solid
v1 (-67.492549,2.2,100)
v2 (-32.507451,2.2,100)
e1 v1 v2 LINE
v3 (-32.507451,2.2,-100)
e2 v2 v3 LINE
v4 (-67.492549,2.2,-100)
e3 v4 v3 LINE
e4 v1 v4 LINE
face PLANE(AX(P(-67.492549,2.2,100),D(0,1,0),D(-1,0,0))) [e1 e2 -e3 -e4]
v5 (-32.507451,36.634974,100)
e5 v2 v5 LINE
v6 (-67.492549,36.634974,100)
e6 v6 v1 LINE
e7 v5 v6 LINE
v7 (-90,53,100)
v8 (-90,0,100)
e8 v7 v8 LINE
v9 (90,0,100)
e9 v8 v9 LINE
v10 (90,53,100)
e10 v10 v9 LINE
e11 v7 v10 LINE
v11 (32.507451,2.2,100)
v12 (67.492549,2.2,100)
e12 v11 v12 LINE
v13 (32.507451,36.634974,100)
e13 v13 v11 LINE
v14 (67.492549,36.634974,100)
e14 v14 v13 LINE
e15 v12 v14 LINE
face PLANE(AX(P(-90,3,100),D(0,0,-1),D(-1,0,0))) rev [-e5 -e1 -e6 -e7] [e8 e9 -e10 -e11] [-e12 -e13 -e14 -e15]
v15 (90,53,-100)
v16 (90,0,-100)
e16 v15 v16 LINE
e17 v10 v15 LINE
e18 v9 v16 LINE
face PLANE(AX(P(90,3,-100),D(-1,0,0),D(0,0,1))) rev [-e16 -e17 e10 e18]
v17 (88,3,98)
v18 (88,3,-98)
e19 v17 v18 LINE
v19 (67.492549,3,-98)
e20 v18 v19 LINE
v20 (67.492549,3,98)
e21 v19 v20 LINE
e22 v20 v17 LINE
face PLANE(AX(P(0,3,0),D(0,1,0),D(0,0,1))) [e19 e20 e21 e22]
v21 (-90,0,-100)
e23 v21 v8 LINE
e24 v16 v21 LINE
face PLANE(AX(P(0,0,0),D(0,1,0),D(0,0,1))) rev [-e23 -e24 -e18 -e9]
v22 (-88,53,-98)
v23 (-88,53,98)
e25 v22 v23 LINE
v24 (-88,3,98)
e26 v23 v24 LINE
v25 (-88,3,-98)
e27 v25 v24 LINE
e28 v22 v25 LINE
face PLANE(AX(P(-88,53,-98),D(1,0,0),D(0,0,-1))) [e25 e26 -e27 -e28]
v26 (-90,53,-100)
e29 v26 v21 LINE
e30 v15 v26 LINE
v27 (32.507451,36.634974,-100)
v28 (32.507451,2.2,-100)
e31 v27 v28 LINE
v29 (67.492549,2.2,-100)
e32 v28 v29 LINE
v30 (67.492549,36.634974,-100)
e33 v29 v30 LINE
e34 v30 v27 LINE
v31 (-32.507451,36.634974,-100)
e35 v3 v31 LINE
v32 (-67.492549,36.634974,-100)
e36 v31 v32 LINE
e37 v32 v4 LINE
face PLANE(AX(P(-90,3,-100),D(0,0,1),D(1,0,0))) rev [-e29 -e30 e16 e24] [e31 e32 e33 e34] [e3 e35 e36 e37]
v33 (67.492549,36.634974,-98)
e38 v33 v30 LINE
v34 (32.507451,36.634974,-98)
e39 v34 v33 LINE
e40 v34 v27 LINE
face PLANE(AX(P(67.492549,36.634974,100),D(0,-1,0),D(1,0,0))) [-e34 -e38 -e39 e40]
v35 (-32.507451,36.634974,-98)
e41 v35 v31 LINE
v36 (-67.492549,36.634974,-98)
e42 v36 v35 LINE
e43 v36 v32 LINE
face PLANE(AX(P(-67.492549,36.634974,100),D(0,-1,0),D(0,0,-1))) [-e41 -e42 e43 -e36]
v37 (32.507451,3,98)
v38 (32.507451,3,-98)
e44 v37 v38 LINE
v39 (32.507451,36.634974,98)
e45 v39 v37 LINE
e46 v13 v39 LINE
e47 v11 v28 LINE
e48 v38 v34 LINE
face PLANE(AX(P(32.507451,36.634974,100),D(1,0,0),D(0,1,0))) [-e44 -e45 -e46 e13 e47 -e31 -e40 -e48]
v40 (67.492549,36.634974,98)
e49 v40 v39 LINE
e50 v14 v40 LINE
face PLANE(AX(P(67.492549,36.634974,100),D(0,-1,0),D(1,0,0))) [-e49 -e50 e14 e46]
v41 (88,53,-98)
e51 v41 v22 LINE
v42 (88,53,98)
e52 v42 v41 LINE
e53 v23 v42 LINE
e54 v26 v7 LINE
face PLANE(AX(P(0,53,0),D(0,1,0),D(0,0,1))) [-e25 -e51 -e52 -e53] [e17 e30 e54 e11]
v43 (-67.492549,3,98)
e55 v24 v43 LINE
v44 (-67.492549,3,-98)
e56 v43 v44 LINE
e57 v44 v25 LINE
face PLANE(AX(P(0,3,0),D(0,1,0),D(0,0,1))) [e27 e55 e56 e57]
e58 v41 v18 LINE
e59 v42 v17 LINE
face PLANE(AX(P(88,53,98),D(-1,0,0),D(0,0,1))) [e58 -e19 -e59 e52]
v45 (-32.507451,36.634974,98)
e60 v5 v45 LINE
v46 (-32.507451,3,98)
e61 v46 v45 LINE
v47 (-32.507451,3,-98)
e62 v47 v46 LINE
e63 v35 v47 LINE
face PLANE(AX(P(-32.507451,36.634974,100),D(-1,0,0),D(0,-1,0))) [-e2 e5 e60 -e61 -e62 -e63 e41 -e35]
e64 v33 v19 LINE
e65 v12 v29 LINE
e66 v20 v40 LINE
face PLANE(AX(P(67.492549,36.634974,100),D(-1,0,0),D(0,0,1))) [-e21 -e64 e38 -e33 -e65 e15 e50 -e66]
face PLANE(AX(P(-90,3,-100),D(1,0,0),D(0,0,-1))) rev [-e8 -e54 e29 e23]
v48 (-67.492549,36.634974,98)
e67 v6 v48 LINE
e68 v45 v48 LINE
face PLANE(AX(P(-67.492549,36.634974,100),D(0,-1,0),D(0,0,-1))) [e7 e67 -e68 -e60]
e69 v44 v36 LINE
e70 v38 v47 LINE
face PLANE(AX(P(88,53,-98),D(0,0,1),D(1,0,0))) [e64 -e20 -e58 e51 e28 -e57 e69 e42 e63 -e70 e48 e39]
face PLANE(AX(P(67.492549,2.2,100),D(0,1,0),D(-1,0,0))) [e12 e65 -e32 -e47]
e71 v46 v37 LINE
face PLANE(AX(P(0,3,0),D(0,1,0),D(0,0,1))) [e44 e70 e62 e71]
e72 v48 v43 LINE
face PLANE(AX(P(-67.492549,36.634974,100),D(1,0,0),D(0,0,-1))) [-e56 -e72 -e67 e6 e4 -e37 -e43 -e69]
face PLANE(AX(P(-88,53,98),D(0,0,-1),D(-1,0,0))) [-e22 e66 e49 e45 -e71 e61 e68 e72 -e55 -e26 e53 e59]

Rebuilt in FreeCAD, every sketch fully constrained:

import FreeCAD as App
import Part
import Sketcher
Q = App.Units.Quantity

doc = App.newDocument("Part")
body = doc.addObject("PartDesign::Body", "Body")

sketch1 = body.newObject("Sketcher::SketchObject", "Sketch")
sketch1.AttachmentSupport = (doc.getObject("XZ_Plane"), [""])
sketch1.MapMode = "FlatFace"
sketch1.addGeometry(Part.LineSegment(App.Vector(-90, -100, 0), App.Vector(-90, 100, 0)), False)
sketch1.addGeometry(Part.LineSegment(App.Vector(-90, 100, 0), App.Vector(90, 100, 0)), False)
sketch1.addGeometry(Part.LineSegment(App.Vector(90, 100, 0), App.Vector(90, -100, 0)), False)
sketch1.addGeometry(Part.LineSegment(App.Vector(90, -100, 0), App.Vector(-90, -100, 0)), False)
sketch1.addConstraint(Sketcher.Constraint("Coincident", 0, 2, 1, 1))
sketch1.addConstraint(Sketcher.Constraint("Coincident", 1, 2, 2, 1))
sketch1.addConstraint(Sketcher.Constraint("Coincident", 2, 2, 3, 1))
sketch1.addConstraint(Sketcher.Constraint("Coincident", 3, 2, 0, 1))
sketch1.addConstraint(Sketcher.Constraint("Vertical", 0))
sketch1.addConstraint(Sketcher.Constraint("Horizontal", 1))
sketch1.addConstraint(Sketcher.Constraint("Vertical", 2))
sketch1.addConstraint(Sketcher.Constraint("Horizontal", 3))
sketch1.addConstraint(Sketcher.Constraint("Symmetric", 0, 2, 2, 2, -1, 1))
sketch1.addConstraint(Sketcher.Constraint("DistanceX", 1, 1, 1, 2, Q("180 mm")))
sketch1.addConstraint(Sketcher.Constraint("DistanceY", 0, 1, 0, 2, Q("200 mm")))
pad1 = body.newObject("PartDesign::Pad", "Pad")
pad1.Profile = sketch1
pad1.Length = 3
pad1.Reversed = True

sketch2 = body.newObject("Sketcher::SketchObject", "Sketch001")
sketch2.AttachmentSupport = (doc.getObject("XZ_Plane"), [""])
sketch2.MapMode = "FlatFace"
sketch2.AttachmentOffset = App.Placement(App.Vector(0, 0, -3), App.Rotation())
sketch2.addGeometry(Part.LineSegment(App.Vector(-90, -100, 0), App.Vector(-90, 100, 0)), False)
sketch2.addGeometry(Part.LineSegment(App.Vector(-90, 100, 0), App.Vector(90, 100, 0)), False)
sketch2.addGeometry(Part.LineSegment(App.Vector(90, 100, 0), App.Vector(90, -100, 0)), False)
sketch2.addGeometry(Part.LineSegment(App.Vector(90, -100, 0), App.Vector(-90, -100, 0)), False)
sketch2.addGeometry(Part.LineSegment(App.Vector(88, 98, 0), App.Vector(-88, 98, 0)), False)
sketch2.addGeometry(Part.LineSegment(App.Vector(-88, 98, 0), App.Vector(-88, -98, 0)), False)
sketch2.addGeometry(Part.LineSegment(App.Vector(-88, -98, 0), App.Vector(88, -98, 0)), False)
sketch2.addGeometry(Part.LineSegment(App.Vector(88, -98, 0), App.Vector(88, 98, 0)), False)
sketch2.addConstraint(Sketcher.Constraint("Coincident", 0, 2, 1, 1))
sketch2.addConstraint(Sketcher.Constraint("Coincident", 1, 2, 2, 1))
sketch2.addConstraint(Sketcher.Constraint("Coincident", 2, 2, 3, 1))
sketch2.addConstraint(Sketcher.Constraint("Coincident", 3, 2, 0, 1))
sketch2.addConstraint(Sketcher.Constraint("Coincident", 4, 2, 5, 1))
sketch2.addConstraint(Sketcher.Constraint("Coincident", 5, 2, 6, 1))
sketch2.addConstraint(Sketcher.Constraint("Coincident", 6, 2, 7, 1))
sketch2.addConstraint(Sketcher.Constraint("Coincident", 7, 2, 4, 1))
sketch2.addConstraint(Sketcher.Constraint("Vertical", 0))
sketch2.addConstraint(Sketcher.Constraint("Horizontal", 1))
sketch2.addConstraint(Sketcher.Constraint("Vertical", 2))
sketch2.addConstraint(Sketcher.Constraint("Horizontal", 3))
sketch2.addConstraint(Sketcher.Constraint("Horizontal", 4))
sketch2.addConstraint(Sketcher.Constraint("Vertical", 5))
sketch2.addConstraint(Sketcher.Constraint("Horizontal", 6))
sketch2.addConstraint(Sketcher.Constraint("Vertical", 7))
sketch2.addConstraint(Sketcher.Constraint("Symmetric", 0, 2, 2, 2, -1, 1))
sketch2.addConstraint(Sketcher.Constraint("Symmetric", 4, 2, 6, 2, -1, 1))
sketch2.addConstraint(Sketcher.Constraint("DistanceX", 1, 1, 1, 2, Q("180 mm")))
sketch2.addConstraint(Sketcher.Constraint("DistanceX", 4, 2, 4, 1, Q("176 mm")))
sketch2.addConstraint(Sketcher.Constraint("DistanceY", 0, 1, 0, 2, Q("200 mm")))
sketch2.addConstraint(Sketcher.Constraint("DistanceY", 5, 2, 5, 1, Q("196 mm")))
pad2 = body.newObject("PartDesign::Pad", "Pad001")
pad2.Profile = sketch2
pad2.Length = 50
pad2.Reversed = True

sketch3 = body.newObject("Sketcher::SketchObject", "Sketch002")
sketch3.AttachmentSupport = (doc.getObject("XY_Plane"), [""])
sketch3.MapMode = "FlatFace"
sketch3.addGeometry(Part.LineSegment(App.Vector(-67.492549, 36.634974, 0), App.Vector(-67.492549, 2.2, 0)), False)
sketch3.addGeometry(Part.LineSegment(App.Vector(-67.492549, 2.2, 0), App.Vector(-32.507451, 2.2, 0)), False)
sketch3.addGeometry(Part.LineSegment(App.Vector(-32.507451, 2.2, 0), App.Vector(-32.507451, 36.634974, 0)), False)
sketch3.addGeometry(Part.LineSegment(App.Vector(-32.507451, 36.634974, 0), App.Vector(-67.492549, 36.634974, 0)), False)
sketch3.addGeometry(Part.LineSegment(App.Vector(32.507451, 36.634974, 0), App.Vector(32.507451, 2.2, 0)), False)
sketch3.addGeometry(Part.LineSegment(App.Vector(32.507451, 2.2, 0), App.Vector(67.492549, 2.2, 0)), False)
sketch3.addGeometry(Part.LineSegment(App.Vector(67.492549, 2.2, 0), App.Vector(67.492549, 36.634974, 0)), False)
sketch3.addGeometry(Part.LineSegment(App.Vector(67.492549, 36.634974, 0), App.Vector(32.507451, 36.634974, 0)), False)
sketch3.addConstraint(Sketcher.Constraint("Coincident", 0, 2, 1, 1))
sketch3.addConstraint(Sketcher.Constraint("Coincident", 1, 2, 2, 1))
sketch3.addConstraint(Sketcher.Constraint("Coincident", 2, 2, 3, 1))
sketch3.addConstraint(Sketcher.Constraint("Coincident", 3, 2, 0, 1))
sketch3.addConstraint(Sketcher.Constraint("Coincident", 4, 2, 5, 1))
sketch3.addConstraint(Sketcher.Constraint("Coincident", 5, 2, 6, 1))
sketch3.addConstraint(Sketcher.Constraint("Coincident", 6, 2, 7, 1))
sketch3.addConstraint(Sketcher.Constraint("Coincident", 7, 2, 4, 1))
sketch3.addConstraint(Sketcher.Constraint("Vertical", 0))
sketch3.addConstraint(Sketcher.Constraint("Horizontal", 1))
sketch3.addConstraint(Sketcher.Constraint("Vertical", 2))
sketch3.addConstraint(Sketcher.Constraint("Horizontal", 3))
sketch3.addConstraint(Sketcher.Constraint("Vertical", 4))
sketch3.addConstraint(Sketcher.Constraint("Horizontal", 5))
sketch3.addConstraint(Sketcher.Constraint("Vertical", 6))
sketch3.addConstraint(Sketcher.Constraint("Horizontal", 7))
sketch3.addConstraint(Sketcher.Constraint("Symmetric", 1, 2, 4, 2, -2))
sketch3.addConstraint(Sketcher.Constraint("Symmetric", 3, 2, 6, 2, -2))
sketch3.addConstraint(Sketcher.Constraint("DistanceX", 0, 2, 4, 2, Q("100 mm")))
sketch3.addConstraint(Sketcher.Constraint("DistanceY", -1, 1, 0, 2, Q("2.2 mm")))
sketch3.addConstraint(Sketcher.Constraint("DistanceX", 1, 1, 1, 2, Q("34.985099 mm")))
sketch3.addConstraint(Sketcher.Constraint("DistanceY", 0, 2, 0, 1, Q("34.434974 mm")))
pocket1 = body.newObject("PartDesign::Pocket", "Pocket")
pocket1.Profile = sketch3
pocket1.Type = "ThroughAll"
pocket1.Midplane = True

doc.recompute()
